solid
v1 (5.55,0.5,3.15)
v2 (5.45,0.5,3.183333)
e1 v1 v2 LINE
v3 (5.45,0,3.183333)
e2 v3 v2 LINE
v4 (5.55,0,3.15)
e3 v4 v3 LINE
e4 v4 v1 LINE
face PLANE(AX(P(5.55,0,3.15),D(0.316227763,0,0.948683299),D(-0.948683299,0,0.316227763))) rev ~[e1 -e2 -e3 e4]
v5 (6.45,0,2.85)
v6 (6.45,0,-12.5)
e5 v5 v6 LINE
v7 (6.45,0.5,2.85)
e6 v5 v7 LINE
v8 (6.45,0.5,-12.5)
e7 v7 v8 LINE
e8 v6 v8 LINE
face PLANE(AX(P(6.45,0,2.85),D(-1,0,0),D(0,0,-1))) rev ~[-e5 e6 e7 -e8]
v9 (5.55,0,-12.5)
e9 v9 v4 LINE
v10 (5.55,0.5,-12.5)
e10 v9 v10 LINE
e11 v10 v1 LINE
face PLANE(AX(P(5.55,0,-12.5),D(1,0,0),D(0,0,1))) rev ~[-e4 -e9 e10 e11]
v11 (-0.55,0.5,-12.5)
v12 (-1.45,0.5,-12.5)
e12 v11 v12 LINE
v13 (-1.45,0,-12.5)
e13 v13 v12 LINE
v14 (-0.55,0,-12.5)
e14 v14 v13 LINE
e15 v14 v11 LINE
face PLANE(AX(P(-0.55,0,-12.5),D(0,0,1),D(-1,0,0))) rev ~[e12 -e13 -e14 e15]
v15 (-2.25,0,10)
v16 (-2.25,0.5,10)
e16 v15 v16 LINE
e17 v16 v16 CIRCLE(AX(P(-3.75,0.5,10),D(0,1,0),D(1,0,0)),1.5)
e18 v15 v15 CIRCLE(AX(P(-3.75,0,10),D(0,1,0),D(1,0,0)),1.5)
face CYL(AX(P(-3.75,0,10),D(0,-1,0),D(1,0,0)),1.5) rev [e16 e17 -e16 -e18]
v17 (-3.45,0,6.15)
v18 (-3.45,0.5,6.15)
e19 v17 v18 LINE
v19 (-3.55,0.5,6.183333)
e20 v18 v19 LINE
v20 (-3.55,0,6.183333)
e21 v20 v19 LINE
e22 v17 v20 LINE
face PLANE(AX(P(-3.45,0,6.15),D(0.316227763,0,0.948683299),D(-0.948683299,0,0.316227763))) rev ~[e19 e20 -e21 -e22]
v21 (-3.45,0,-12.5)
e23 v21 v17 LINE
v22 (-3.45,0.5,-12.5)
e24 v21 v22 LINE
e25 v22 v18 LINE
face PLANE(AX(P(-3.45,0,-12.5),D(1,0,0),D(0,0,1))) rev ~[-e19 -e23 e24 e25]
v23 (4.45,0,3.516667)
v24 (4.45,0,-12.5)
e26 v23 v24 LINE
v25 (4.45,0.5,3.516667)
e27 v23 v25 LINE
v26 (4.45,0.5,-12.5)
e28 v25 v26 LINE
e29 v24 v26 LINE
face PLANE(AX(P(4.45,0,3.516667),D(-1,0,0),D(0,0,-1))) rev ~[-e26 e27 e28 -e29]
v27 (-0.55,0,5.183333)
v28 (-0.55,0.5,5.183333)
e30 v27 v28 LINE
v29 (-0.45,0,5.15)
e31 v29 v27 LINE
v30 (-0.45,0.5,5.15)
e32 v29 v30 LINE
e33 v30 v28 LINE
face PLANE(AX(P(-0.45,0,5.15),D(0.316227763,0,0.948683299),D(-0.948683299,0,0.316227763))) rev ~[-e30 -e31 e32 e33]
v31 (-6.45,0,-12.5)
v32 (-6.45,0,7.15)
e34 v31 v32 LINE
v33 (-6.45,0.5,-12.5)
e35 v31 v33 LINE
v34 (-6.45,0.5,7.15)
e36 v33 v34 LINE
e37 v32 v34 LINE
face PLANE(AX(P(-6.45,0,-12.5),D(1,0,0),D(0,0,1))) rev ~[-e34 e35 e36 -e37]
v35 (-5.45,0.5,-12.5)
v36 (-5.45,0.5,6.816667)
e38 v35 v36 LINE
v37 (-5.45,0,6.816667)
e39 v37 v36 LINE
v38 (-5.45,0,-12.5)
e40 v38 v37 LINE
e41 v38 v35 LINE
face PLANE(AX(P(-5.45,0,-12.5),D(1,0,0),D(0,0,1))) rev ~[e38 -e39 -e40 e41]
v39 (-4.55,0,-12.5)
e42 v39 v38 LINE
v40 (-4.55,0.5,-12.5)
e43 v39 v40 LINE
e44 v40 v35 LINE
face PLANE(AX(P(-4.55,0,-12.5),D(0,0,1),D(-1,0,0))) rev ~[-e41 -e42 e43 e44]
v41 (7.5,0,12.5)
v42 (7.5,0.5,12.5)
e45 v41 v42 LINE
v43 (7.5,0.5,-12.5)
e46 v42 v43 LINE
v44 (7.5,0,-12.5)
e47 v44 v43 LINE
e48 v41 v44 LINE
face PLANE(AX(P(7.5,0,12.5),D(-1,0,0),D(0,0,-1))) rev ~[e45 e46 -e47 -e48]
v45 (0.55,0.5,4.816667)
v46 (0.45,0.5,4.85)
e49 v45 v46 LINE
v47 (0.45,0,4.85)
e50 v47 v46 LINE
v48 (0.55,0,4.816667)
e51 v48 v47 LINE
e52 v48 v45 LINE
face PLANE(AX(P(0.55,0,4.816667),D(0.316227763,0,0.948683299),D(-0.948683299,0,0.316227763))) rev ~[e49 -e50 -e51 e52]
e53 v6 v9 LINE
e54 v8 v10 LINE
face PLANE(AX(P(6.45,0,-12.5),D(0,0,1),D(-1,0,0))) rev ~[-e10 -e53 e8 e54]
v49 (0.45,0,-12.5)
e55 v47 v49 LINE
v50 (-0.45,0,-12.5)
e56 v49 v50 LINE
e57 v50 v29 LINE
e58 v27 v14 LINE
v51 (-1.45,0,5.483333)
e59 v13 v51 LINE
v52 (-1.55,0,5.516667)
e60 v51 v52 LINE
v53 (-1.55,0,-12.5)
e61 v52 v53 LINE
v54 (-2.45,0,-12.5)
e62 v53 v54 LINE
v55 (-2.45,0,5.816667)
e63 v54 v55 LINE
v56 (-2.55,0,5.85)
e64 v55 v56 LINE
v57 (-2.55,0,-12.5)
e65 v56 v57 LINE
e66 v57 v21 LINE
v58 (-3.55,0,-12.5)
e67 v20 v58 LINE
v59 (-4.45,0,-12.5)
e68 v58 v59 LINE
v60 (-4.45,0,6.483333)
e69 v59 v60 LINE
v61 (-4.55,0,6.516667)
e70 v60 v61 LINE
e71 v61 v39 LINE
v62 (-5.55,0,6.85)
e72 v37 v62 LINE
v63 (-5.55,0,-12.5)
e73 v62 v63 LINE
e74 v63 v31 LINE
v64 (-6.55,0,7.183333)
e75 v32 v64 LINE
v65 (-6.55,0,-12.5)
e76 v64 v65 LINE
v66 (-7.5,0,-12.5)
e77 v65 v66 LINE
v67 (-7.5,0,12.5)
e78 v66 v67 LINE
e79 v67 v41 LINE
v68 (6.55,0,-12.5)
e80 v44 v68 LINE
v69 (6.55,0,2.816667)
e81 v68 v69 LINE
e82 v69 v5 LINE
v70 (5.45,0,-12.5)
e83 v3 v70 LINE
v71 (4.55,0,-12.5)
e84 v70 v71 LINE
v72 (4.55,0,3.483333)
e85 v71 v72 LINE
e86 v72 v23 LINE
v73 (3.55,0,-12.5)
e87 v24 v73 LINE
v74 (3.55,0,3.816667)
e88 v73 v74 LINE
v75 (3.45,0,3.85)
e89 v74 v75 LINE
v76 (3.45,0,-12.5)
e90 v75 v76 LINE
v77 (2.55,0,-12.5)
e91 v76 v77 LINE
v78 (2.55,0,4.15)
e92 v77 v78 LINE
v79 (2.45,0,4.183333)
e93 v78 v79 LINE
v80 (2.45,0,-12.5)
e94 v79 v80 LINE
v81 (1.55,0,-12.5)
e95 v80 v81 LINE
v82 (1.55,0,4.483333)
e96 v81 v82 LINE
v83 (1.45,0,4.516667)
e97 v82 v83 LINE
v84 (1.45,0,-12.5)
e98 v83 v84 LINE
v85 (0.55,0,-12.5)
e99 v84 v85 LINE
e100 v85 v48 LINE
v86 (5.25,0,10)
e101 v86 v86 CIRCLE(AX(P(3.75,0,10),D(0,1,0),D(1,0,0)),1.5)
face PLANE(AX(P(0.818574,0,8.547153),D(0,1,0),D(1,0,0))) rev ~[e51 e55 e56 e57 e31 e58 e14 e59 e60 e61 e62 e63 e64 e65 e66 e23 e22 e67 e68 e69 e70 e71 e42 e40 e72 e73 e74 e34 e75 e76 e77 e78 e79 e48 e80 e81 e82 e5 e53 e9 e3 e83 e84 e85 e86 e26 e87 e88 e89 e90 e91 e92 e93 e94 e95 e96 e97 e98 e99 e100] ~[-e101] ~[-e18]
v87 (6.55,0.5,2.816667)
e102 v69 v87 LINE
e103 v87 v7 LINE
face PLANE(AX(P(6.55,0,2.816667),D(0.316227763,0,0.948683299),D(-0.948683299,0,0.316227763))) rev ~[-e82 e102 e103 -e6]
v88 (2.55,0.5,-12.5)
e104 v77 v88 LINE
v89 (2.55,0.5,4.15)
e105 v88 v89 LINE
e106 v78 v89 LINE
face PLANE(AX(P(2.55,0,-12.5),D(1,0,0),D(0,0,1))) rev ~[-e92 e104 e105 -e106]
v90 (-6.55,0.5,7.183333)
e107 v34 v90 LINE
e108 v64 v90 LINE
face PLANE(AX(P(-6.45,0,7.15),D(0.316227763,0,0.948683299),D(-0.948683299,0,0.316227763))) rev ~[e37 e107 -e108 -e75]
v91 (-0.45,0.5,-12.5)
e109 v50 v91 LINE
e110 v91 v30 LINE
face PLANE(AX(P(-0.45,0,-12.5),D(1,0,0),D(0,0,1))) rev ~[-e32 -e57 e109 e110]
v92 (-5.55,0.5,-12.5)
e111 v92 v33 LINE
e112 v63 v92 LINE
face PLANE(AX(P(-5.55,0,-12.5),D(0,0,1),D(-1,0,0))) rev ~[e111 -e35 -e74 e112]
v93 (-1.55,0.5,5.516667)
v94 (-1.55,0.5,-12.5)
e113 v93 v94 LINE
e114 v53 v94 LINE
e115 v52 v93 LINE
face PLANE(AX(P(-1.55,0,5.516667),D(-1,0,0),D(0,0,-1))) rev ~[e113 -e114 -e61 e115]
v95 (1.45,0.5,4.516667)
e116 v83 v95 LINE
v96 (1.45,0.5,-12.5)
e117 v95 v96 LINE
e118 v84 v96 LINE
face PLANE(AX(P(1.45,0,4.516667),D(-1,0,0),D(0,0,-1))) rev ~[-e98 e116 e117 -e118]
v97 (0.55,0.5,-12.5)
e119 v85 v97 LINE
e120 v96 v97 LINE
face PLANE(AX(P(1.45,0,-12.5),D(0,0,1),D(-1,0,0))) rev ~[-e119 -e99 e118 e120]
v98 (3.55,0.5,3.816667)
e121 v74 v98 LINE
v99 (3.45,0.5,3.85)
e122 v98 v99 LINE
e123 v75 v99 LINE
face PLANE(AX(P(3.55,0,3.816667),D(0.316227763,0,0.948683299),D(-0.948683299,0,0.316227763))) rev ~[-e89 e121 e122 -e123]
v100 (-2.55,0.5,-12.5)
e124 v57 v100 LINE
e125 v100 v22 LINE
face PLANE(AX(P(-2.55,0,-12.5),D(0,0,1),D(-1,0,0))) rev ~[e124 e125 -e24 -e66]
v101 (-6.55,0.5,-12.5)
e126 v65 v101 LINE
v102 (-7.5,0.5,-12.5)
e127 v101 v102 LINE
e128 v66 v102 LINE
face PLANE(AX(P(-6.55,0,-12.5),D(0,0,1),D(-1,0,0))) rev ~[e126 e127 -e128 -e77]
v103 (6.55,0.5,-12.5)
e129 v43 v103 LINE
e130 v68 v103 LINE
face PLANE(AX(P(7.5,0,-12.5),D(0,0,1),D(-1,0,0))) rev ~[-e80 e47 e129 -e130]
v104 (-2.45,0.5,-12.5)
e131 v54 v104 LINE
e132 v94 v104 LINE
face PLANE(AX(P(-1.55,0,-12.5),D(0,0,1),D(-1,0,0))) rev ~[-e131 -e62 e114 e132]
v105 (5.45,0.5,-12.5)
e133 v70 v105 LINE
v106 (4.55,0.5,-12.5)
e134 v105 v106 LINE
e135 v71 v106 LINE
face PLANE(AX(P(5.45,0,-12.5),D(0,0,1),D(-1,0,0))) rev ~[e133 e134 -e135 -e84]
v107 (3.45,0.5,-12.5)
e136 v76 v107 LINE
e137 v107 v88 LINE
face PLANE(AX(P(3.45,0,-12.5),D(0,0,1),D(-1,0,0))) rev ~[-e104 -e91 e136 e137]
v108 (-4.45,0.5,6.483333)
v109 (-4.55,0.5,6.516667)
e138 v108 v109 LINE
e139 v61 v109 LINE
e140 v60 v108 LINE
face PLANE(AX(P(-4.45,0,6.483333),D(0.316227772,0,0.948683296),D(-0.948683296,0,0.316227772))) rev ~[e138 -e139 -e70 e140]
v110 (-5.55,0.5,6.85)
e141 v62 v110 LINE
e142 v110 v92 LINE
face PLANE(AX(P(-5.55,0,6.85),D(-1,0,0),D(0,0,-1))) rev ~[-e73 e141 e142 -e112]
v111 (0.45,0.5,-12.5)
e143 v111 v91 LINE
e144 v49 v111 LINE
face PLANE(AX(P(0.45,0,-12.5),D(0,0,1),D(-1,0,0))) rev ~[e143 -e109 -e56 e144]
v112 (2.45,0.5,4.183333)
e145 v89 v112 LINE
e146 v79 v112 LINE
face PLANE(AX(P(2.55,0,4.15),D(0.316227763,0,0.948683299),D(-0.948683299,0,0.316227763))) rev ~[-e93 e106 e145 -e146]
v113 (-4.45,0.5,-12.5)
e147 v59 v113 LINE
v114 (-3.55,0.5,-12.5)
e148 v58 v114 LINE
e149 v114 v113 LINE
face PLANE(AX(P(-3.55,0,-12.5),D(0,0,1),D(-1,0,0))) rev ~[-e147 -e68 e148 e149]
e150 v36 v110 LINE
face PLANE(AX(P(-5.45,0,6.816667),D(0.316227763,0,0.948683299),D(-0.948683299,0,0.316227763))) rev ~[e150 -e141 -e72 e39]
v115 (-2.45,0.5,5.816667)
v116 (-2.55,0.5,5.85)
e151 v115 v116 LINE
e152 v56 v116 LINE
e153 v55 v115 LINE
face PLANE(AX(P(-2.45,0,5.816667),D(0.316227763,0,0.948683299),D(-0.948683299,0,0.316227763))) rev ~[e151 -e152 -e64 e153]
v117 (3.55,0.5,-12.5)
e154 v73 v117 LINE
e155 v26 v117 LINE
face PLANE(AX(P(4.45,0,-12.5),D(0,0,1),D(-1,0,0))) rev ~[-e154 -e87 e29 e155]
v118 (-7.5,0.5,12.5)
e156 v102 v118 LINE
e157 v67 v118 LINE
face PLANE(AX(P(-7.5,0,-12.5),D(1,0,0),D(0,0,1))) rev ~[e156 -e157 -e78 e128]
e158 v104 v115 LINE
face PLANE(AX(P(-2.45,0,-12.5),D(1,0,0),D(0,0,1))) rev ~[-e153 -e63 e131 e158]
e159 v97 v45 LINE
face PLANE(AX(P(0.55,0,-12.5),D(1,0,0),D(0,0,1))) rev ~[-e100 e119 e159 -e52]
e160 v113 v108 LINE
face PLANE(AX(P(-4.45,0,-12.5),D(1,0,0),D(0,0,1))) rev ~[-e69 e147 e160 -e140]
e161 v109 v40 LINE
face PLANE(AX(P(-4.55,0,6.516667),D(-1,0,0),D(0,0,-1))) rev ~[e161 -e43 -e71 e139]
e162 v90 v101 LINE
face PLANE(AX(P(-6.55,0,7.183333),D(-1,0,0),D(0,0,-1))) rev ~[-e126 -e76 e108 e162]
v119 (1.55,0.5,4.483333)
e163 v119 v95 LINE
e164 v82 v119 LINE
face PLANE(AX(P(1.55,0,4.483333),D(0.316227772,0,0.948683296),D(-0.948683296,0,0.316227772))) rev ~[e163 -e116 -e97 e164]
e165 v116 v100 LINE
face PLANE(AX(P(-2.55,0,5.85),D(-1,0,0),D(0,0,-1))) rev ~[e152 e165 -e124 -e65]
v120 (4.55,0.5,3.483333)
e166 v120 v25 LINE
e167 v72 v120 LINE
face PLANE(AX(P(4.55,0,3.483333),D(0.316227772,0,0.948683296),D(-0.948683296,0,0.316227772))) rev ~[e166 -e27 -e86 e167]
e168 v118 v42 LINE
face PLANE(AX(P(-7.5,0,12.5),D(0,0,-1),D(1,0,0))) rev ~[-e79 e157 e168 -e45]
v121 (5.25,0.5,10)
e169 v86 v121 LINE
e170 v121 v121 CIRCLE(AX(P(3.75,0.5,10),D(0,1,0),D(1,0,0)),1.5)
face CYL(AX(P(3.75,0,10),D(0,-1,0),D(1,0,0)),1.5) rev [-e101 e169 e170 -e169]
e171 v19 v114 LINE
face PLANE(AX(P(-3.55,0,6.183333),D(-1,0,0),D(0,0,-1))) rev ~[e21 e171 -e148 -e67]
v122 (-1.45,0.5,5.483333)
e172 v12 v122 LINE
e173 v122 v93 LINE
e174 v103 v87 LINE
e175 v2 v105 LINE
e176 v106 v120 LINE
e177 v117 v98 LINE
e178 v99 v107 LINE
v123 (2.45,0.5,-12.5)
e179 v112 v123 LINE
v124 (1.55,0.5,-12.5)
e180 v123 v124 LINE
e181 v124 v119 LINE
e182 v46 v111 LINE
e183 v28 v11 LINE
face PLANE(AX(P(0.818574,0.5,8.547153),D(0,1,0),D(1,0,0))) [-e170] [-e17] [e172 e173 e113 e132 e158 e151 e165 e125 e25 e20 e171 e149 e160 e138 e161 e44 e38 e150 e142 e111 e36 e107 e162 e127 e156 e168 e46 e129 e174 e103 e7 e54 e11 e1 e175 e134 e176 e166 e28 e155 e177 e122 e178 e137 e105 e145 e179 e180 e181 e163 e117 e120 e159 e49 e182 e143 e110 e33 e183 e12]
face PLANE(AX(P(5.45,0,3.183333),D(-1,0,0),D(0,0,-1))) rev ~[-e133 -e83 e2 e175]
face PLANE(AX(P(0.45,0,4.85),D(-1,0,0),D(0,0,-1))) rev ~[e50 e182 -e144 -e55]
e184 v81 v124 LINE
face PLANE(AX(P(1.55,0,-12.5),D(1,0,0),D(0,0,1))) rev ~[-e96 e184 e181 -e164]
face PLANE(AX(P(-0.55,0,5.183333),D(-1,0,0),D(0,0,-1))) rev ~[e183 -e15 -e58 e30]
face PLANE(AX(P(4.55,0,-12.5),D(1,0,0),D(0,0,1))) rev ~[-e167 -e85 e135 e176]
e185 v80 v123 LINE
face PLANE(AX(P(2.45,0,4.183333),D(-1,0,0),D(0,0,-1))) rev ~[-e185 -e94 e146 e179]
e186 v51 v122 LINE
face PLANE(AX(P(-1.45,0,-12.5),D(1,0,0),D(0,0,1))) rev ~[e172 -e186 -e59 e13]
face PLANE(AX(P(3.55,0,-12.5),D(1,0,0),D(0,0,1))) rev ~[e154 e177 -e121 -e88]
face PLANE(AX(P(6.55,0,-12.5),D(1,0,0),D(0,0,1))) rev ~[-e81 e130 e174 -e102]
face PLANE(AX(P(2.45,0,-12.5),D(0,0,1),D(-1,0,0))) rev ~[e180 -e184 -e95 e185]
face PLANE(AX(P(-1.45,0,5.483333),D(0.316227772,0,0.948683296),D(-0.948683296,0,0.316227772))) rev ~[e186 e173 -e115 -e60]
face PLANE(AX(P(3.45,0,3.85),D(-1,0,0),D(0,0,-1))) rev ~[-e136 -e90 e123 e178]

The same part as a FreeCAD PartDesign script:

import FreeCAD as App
import Part
import Sketcher
Q = App.Units.Quantity


def add_polygon(sketch, points):
    """Adds a closed chain of lines whose ends are joined by coincident constraints."""
    first, n = sketch.GeometryCount, len(points)
    for a, b in zip(points, points[1:] + points[:1]):
        sketch.addGeometry(Part.LineSegment(App.Vector(*a, 0), App.Vector(*b, 0)), False)
    for i in range(n):
        sketch.addConstraint(Sketcher.Constraint("Coincident", first + i, 2, first + (i + 1) % n, 1))

doc = App.newDocument("Part")
body = doc.addObject("PartDesign::Body", "Body")

# Sketch on XZ plane
sketch1 = body.newObject("Sketcher::SketchObject", "Sketch")
sketch1.AttachmentSupport = (doc.getObject("XZ_Plane"), [""])
sketch1.MapMode = "FlatFace"
add_polygon(sketch1, [(-7.5, 12.5), (7.5, 12.5), (7.5, -12.5), (6.55, -12.5), (6.55, 2.82), (6.45, 2.85), (6.45, -12.5), (5.55, -12.5), (5.55, 3.15), (5.45, 3.18), (5.45, -12.5), (4.55, -12.5), (4.55, 3.48), (4.45, 3.52), (4.45, -12.5), (3.55, -12.5), (3.55, 3.82), (3.45, 3.85), (3.45, -12.5), (2.55, -12.5), (2.55, 4.15), (2.45, 4.18), (2.45, -12.5), (1.55, -12.5), (1.55, 4.48), (1.45, 4.52), (1.45, -12.5), (0.55, -12.5), (0.55, 4.82), (0.45, 4.85), (0.45, -12.5), (-0.45, -12.5), (-0.45, 5.15), (-0.55, 5.18), (-0.55, -12.5), (-1.45, -12.5), (-1.45, 5.48), (-1.55, 5.52), (-1.55, -12.5), (-2.45, -12.5), (-2.45, 5.82), (-2.55, 5.85), (-2.55, -12.5), (-3.45, -12.5), (-3.45, 6.15), (-3.55, 6.18), (-3.55, -12.5), (-4.45, -12.5), (-4.45, 6.48), (-4.55, 6.52), (-4.55, -12.5), (-5.45, -12.5), (-5.45, 6.82), (-5.55, 6.85), (-5.55, -12.5), (-6.45, -12.5), (-6.45, 7.15), (-6.55, 7.18), (-6.55, -12.5), (-7.5, -12.5)])  # lines 0-59
sketch1.addGeometry(Part.Circle(App.Vector(-3.75, 10, 0), App.Vector(0, 0, 1), 1.5), False)  # 60
sketch1.addGeometry(Part.Circle(App.Vector(3.75, 10, 0), App.Vector(0, 0, 1), 1.5), False)  # 61
sketch1.addConstraint(Sketcher.Constraint("Horizontal", 0))
sketch1.addConstraint(Sketcher.Constraint("Vertical", 1))
sketch1.addConstraint(Sketcher.Constraint("Horizontal", 2))
sketch1.addConstraint(Sketcher.Constraint("Vertical", 3))
sketch1.addConstraint(Sketcher.Constraint("Vertical", 5))
sketch1.addConstraint(Sketcher.Constraint("Horizontal", 6))
sketch1.addConstraint(Sketcher.Constraint("Vertical", 7))
sketch1.addConstraint(Sketcher.Constraint("Vertical", 9))
sketch1.addConstraint(Sketcher.Constraint("Horizontal", 10))
sketch1.addConstraint(Sketcher.Constraint("Vertical", 11))
sketch1.addConstraint(Sketcher.Constraint("Vertical", 13))
sketch1.addConstraint(Sketcher.Constraint("Horizontal", 14))
sketch1.addConstraint(Sketcher.Constraint("Vertical", 15))
sketch1.addConstraint(Sketcher.Constraint("Vertical", 17))
sketch1.addConstraint(Sketcher.Constraint("Horizontal", 18))
sketch1.addConstraint(Sketcher.Constraint("Vertical", 19))
sketch1.addConstraint(Sketcher.Constraint("Vertical", 21))
sketch1.addConstraint(Sketcher.Constraint("Horizontal", 22))
sketch1.addConstraint(Sketcher.Constraint("Vertical", 23))
sketch1.addConstraint(Sketcher.Constraint("Vertical", 25))
sketch1.addConstraint(Sketcher.Constraint("Horizontal", 26))
sketch1.addConstraint(Sketcher.Constraint("Vertical", 27))
sketch1.addConstraint(Sketcher.Constraint("Vertical", 29))
sketch1.addConstraint(Sketcher.Constraint("Horizontal", 30))
sketch1.addConstraint(Sketcher.Constraint("Vertical", 31))
sketch1.addConstraint(Sketcher.Constraint("Vertical", 33))
sketch1.addConstraint(Sketcher.Constraint("Horizontal", 34))
sketch1.addConstraint(Sketcher.Constraint("Vertical", 35))
sketch1.addConstraint(Sketcher.Constraint("Vertical", 37))
sketch1.addConstraint(Sketcher.Constraint("Horizontal", 38))
sketch1.addConstraint(Sketcher.Constraint("Vertical", 39))
sketch1.addConstraint(Sketcher.Constraint("Vertical", 41))
sketch1.addConstraint(Sketcher.Constraint("Horizontal", 42))
sketch1.addConstraint(Sketcher.Constraint("Vertical", 43))
sketch1.addConstraint(Sketcher.Constraint("Vertical", 45))
sketch1.addConstraint(Sketcher.Constraint("Horizontal", 46))
sketch1.addConstraint(Sketcher.Constraint("Vertical", 47))
sketch1.addConstraint(Sketcher.Constraint("Vertical", 49))
sketch1.addConstraint(Sketcher.Constraint("Horizontal", 50))
sketch1.addConstraint(Sketcher.Constraint("Vertical", 51))
sketch1.addConstraint(Sketcher.Constraint("Vertical", 53))
sketch1.addConstraint(Sketcher.Constraint("Horizontal", 54))
sketch1.addConstraint(Sketcher.Constraint("Vertical", 55))
sketch1.addConstraint(Sketcher.Constraint("Vertical", 57))
sketch1.addConstraint(Sketcher.Constraint("Horizontal", 58))
sketch1.addConstraint(Sketcher.Constraint("Vertical", 59))
sketch1.addConstraint(Sketcher.Constraint("Equal", 60, 61))
sketch1.addConstraint(Sketcher.Constraint("Symmetric", 0, 2, 58, 2, -1, 1))
sketch1.addConstraint(Sketcher.Constraint("Symmetric", 60, 3, 61, 3, -2))
sketch1.addConstraint(Sketcher.Constraint("Symmetric", 26, 2, 33, 2, -2))
sketch1.addConstraint(Sketcher.Constraint("Symmetric", 22, 2, 37, 2, -2))
sketch1.addConstraint(Sketcher.Constraint("Symmetric", 18, 2, 41, 2, -2))
sketch1.addConstraint(Sketcher.Constraint("Symmetric", 14, 2, 45, 2, -2))
sketch1.addConstraint(Sketcher.Constraint("Symmetric", 10, 2, 49, 2, -2))
sketch1.addConstraint(Sketcher.Constraint("Symmetric", 6, 2, 53, 2, -2))
sketch1.addConstraint(Sketcher.Constraint("Symmetric", 2, 2, 57, 2, -2))
sketch1.addConstraint(Sketcher.Constraint("Parallel", 4, 8))
sketch1.addConstraint(Sketcher.Constraint("Parallel", 8, 12))
sketch1.addConstraint(Sketcher.Constraint("Parallel", 12, 16))
sketch1.addConstraint(Sketcher.Constraint("Parallel", 16, 20))
sketch1.addConstraint(Sketcher.Constraint("Parallel", 20, 24))
sketch1.addConstraint(Sketcher.Constraint("Parallel", 24, 28))
sketch1.addConstraint(Sketcher.Constraint("Parallel", 28, 32))
sketch1.addConstraint(Sketcher.Constraint("Parallel", 32, 36))
sketch1.addConstraint(Sketcher.Constraint("Parallel", 36, 40))
sketch1.addConstraint(Sketcher.Constraint("Parallel", 40, 44))
sketch1.addConstraint(Sketcher.Constraint("Parallel", 44, 48))
sketch1.addConstraint(Sketcher.Constraint("Parallel", 48, 52))
sketch1.addConstraint(Sketcher.Constraint("Parallel", 52, 56))
sketch1.addConstraint(Sketcher.Constraint("Horizontal", 2, 2, 5, 2))
sketch1.addConstraint(Sketcher.Constraint("Horizontal", 6, 2, 9, 2))
sketch1.addConstraint(Sketcher.Constraint("Horizontal", 10, 2, 13, 2))
sketch1.addConstraint(Sketcher.Constraint("Horizontal", 14, 2, 17, 2))
sketch1.addConstraint(Sketcher.Constraint("Horizontal", 18, 2, 21, 2))
sketch1.addConstraint(Sketcher.Constraint("Horizontal", 22, 2, 25, 2))
sketch1.addConstraint(Sketcher.Constraint("Horizontal", 26, 2, 29, 2))
sketch1.addConstraint(Sketcher.Constraint("Equal", 6, 10))
sketch1.addConstraint(Sketcher.Constraint("Equal", 10, 14))
sketch1.addConstraint(Sketcher.Constraint("Equal", 14, 18))
sketch1.addConstraint(Sketcher.Constraint("Equal", 18, 22))
sketch1.addConstraint(Sketcher.Constraint("Equal", 22, 26))
sketch1.addConstraint(Sketcher.Constraint("Equal", 26, 30))
sketch1.addConstraint(Sketcher.Constraint("Equal", 30, 34))
sketch1.addConstraint(Sketcher.Constraint("Equal", 34, 38))
sketch1.addConstraint(Sketcher.Constraint("Equal", 38, 42))
sketch1.addConstraint(Sketcher.Constraint("Equal", 42, 46))
sketch1.addConstraint(Sketcher.Constraint("Equal", 46, 50))
sketch1.addConstraint(Sketcher.Constraint("Equal", 50, 54))
sketch1.addConstraint(Sketcher.Constraint("Equal", 4, 8))
sketch1.addConstraint(Sketcher.Constraint("Equal", 8, 12))
sketch1.addConstraint(Sketcher.Constraint("Equal", 12, 16))
sketch1.addConstraint(Sketcher.Constraint("Equal", 16, 20))
sketch1.addConstraint(Sketcher.Constraint("Equal", 20, 24))
sketch1.addConstraint(Sketcher.Constraint("Equal", 24, 28))
sketch1.addConstraint(Sketcher.Constraint("Equal", 28, 32))
sketch1.addConstraint(Sketcher.Constraint("Diameter", 60, Q("3 mm")))
sketch1.addConstraint(Sketcher.Constraint("DistanceX", 0, 1, 0, 2, Q("15 mm")))
sketch1.addConstraint(Sketcher.Constraint("DistanceY", 1, 2, 1, 1, Q("25 mm")))
sketch1.addConstraint(Sketcher.Constraint("DistanceX", 6, 2, 6, 1, Q("0.9 mm")))
sketch1.addConstraint(Sketcher.Constraint("DistanceY", -1, 1, 60, 3, Q("10 mm")))
sketch1.addConstraint(Sketcher.Constraint("DistanceX", 2, 2, 2, 1, Q("0.95 mm")))
sketch1.addConstraint(Sketcher.Constraint("DistanceY", 5, 2, 5, 1, Q("15.35 mm")))
sketch1.addConstraint(Sketcher.Constraint("DistanceY", 7, 1, 7, 2, Q("15.65 mm")))
sketch1.addConstraint(Sketcher.Constraint("DistanceY", 17, 2, 17, 1, Q("16.35 mm")))
sketch1.addConstraint(Sketcher.Constraint("DistanceY", 19, 1, 19, 2, Q("16.65 mm")))
sketch1.addConstraint(Sketcher.Constraint("DistanceY", 29, 2, 29, 1, Q("17.35 mm")))
sketch1.addConstraint(Sketcher.Constraint("DistanceY", 31, 1, 31, 2, Q("17.65 mm")))
sketch1.addConstraint(Sketcher.Constraint("DistanceY", 41, 2, 41, 1, Q("18.35 mm")))
sketch1.addConstraint(Sketcher.Constraint("DistanceY", 43, 1, 43, 2, Q("18.65 mm")))
sketch1.addConstraint(Sketcher.Constraint("DistanceY", 53, 2, 53, 1, Q("19.35 mm")))
sketch1.addConstraint(Sketcher.Constraint("DistanceY", 55, 1, 55, 2, Q("19.65 mm")))
sketch1.addConstraint(Sketcher.Constraint("DistanceX", 60, 3, -1, 1, Q("3.75 mm")))
sketch1.addConstraint(Sketcher.Constraint("Distance", 4, Q("0.105409 mm")))
sketch1.addConstraint(Sketcher.Constraint("DistanceY", 11, 1, 11, 2, Q("15.983333 mm")))
sketch1.addConstraint(Sketcher.Constraint("DistanceY", 23, 1, 23, 2, Q("16.983333 mm")))
sketch1.addConstraint(Sketcher.Constraint("DistanceY", 35, 1, 35, 2, Q("17.983333 mm")))
sketch1.addConstraint(Sketcher.Constraint("DistanceY", 47, 1, 47, 2, Q("18.983333 mm")))
pad1 = body.newObject("PartDesign::Pad", "Pad")
pad1.Profile = sketch1
pad1.Length = 0.5
pad1.Reversed = True

doc.recompute()
